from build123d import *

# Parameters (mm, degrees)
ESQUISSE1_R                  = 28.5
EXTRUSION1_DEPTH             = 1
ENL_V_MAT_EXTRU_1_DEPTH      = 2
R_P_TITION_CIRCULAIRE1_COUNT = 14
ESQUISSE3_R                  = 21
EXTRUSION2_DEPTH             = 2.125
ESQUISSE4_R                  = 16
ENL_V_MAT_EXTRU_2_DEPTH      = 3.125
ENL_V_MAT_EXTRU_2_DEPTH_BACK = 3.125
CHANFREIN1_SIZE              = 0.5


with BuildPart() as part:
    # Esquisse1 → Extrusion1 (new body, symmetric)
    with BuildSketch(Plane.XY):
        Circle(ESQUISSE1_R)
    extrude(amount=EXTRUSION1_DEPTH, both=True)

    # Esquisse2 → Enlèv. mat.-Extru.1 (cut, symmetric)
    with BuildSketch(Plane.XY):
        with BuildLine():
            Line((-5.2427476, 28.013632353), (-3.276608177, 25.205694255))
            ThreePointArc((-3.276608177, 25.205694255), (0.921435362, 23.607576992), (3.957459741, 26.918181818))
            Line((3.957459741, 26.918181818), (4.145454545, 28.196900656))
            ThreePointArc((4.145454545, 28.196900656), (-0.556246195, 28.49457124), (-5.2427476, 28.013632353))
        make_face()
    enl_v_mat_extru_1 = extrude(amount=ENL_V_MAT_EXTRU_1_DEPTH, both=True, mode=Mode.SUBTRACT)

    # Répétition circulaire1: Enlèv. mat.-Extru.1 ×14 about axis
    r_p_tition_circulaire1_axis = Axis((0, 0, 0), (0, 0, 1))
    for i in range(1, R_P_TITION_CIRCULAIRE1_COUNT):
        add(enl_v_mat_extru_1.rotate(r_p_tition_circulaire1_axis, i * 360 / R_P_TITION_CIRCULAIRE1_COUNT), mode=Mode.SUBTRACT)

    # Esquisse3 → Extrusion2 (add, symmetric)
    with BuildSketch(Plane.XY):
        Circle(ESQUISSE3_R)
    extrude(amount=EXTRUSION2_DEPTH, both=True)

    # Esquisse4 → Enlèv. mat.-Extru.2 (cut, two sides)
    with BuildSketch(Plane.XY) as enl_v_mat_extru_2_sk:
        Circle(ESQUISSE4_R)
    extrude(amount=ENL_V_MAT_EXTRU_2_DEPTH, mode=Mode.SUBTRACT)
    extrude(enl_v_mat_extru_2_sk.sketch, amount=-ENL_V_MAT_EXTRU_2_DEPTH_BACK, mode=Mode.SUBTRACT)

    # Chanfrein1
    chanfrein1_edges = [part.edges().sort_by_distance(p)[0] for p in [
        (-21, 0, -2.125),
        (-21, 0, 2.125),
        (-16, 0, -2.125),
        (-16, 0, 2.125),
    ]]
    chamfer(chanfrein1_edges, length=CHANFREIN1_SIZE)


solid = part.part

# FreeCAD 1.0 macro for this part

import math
import FreeCAD as App
import Part
import Sketcher

V = App.Vector
Q = App.Units.Quantity


def edges_at(feature, points):
    """Names of the edges that pass closest to the given points."""
    edges = feature.Shape.Edges
    near = lambda p: min(range(len(edges)), key=lambda i: edges[i].distToShape(Part.Vertex(*p))[0])
    return sorted({f"Edge{near(p) + 1}" for p in points})

doc = App.newDocument("Part")
body = doc.addObject("PartDesign::Body", "Body")

# Sketch on XY plane
sketch1 = doc.addObject("Sketcher::SketchObject", "Sketch")
body.addObject(sketch1)
sketch1.AttachmentSupport = (doc.XY_Plane, [""])
sketch1.MapMode = "FlatFace"
sketch1.addGeometry(Part.Circle(V(0, 0, 0), V(0, 0, 1), 28), False)
sketch1.addConstraint([
    Sketcher.Constraint("Coincident", 0, 3, -1, 1),
    Sketcher.Constraint("Diameter", 0, 57.0),
])
pad1 = doc.addObject("PartDesign::Pad", "Pad")
body.addObject(pad1)
pad1.Profile = sketch1
pad1.Length = 2
pad1.Midplane = True

# Sketch on XY plane
sketch2 = doc.addObject("Sketcher::SketchObject", "Sketch001")
body.addObject(sketch2)
sketch2.AttachmentSupport = (doc.XY_Plane, [""])
sketch2.MapMode = "FlatFace"
sketch2.addGeometry([
    Part.LineSegment(V(-5.2, 28, 0), V(-3.3, 25.2, 0)),
    Part.ArcOfCircle(Part.Circle(V(0, 27.5, 0), V(0, 0, 1), 4), math.radians(-145), math.radians(-8)),
    Part.LineSegment(V(4, 26.9, 0), V(4.1, 28.2, 0)),
    Part.ArcOfCircle(Part.Circle(V(0, 0, 0), V(0, 0, 1), 28.5), math.radians(81.64), math.radians(100.6)),
], False)
sketch2.addConstraint([
    Sketcher.Constraint("Tangent", 0, 2, 1, 1),
    Sketcher.Constraint("Tangent", 1, 2, 2, 1),
    Sketcher.Constraint("Coincident", 2, 2, 3, 1),
    Sketcher.Constraint("Coincident", 3, 2, 0, 1),
    Sketcher.Constraint("Coincident", 3, 3, -1, 1),
    Sketcher.Constraint("PointOnObject", 1, 3, -2),
    Sketcher.Constraint("Radius", 1, 4.0),
    Sketcher.Constraint("Radius", 3, 28.5),
    Sketcher.Constraint("Angle", 0, Q("-55 deg")),
    Sketcher.Constraint("DistanceY", -1, 1, 1, 3, 27.5),
    Sketcher.Constraint("DistanceY", -1, 1, 2, 2, 28.196901),
])
pocket1 = doc.addObject("PartDesign::Pocket", "Pocket")
body.addObject(pocket1)
pocket1.Profile = sketch2
pocket1.Length = 4
pocket1.Midplane = True
doc.recompute()

polarpattern = doc.addObject("PartDesign::PolarPattern", "PolarPattern")
body.addObject(polarpattern)
polarpattern.Originals = [pocket1]
polarpattern.Axis = (doc.Z_Axis, [""])
polarpattern.Angle = 360
polarpattern.Occurrences = 14
body.Tip = polarpattern

# Sketch on XY plane
sketch3 = doc.addObject("Sketcher::SketchObject", "Sketch002")
body.addObject(sketch3)
sketch3.AttachmentSupport = (doc.XY_Plane, [""])
sketch3.MapMode = "FlatFace"
sketch3.addGeometry(Part.Circle(V(0, 0, 0), V(0, 0, 1), 21), False)
sketch3.addConstraint([
    Sketcher.Constraint("Coincident", 0, 3, -1, 1),
    Sketcher.Constraint("Diameter", 0, 42.0),
])
pad2 = doc.addObject("PartDesign::Pad", "Pad001")
body.addObject(pad2)
pad2.Profile = sketch3
pad2.Length = 4.25
pad2.Midplane = True

# Sketch on XY plane
sketch4 = doc.addObject("Sketcher::SketchObject", "Sketch003")
body.addObject(sketch4)
sketch4.AttachmentSupport = (doc.XY_Plane, [""])
sketch4.MapMode = "FlatFace"
sketch4.addGeometry(Part.Circle(V(0, 0, 0), V(0, 0, 1), 16), False)
sketch4.addConstraint([
    Sketcher.Constraint("Coincident", 0, 3, -1, 1),
    Sketcher.Constraint("Diameter", 0, 32.0),
])
pocket2 = doc.addObject("PartDesign::Pocket", "Pocket001")
body.addObject(pocket2)
pocket2.Profile = sketch4
pocket2.Type = "ThroughAll"
pocket2.Midplane = True
doc.recompute()

chamfer = doc.addObject("PartDesign::Chamfer", "Chamfer")
body.addObject(chamfer)
chamfer.Base = (pocket2, edges_at(pocket2, [
    (-21, 0, -2.125),
    (-21, 0, 2.125),
    (-16, 0, -2.125),
    (-16, 0, 2.125),
]))
chamfer.Size = 0.5

doc.recompute()
